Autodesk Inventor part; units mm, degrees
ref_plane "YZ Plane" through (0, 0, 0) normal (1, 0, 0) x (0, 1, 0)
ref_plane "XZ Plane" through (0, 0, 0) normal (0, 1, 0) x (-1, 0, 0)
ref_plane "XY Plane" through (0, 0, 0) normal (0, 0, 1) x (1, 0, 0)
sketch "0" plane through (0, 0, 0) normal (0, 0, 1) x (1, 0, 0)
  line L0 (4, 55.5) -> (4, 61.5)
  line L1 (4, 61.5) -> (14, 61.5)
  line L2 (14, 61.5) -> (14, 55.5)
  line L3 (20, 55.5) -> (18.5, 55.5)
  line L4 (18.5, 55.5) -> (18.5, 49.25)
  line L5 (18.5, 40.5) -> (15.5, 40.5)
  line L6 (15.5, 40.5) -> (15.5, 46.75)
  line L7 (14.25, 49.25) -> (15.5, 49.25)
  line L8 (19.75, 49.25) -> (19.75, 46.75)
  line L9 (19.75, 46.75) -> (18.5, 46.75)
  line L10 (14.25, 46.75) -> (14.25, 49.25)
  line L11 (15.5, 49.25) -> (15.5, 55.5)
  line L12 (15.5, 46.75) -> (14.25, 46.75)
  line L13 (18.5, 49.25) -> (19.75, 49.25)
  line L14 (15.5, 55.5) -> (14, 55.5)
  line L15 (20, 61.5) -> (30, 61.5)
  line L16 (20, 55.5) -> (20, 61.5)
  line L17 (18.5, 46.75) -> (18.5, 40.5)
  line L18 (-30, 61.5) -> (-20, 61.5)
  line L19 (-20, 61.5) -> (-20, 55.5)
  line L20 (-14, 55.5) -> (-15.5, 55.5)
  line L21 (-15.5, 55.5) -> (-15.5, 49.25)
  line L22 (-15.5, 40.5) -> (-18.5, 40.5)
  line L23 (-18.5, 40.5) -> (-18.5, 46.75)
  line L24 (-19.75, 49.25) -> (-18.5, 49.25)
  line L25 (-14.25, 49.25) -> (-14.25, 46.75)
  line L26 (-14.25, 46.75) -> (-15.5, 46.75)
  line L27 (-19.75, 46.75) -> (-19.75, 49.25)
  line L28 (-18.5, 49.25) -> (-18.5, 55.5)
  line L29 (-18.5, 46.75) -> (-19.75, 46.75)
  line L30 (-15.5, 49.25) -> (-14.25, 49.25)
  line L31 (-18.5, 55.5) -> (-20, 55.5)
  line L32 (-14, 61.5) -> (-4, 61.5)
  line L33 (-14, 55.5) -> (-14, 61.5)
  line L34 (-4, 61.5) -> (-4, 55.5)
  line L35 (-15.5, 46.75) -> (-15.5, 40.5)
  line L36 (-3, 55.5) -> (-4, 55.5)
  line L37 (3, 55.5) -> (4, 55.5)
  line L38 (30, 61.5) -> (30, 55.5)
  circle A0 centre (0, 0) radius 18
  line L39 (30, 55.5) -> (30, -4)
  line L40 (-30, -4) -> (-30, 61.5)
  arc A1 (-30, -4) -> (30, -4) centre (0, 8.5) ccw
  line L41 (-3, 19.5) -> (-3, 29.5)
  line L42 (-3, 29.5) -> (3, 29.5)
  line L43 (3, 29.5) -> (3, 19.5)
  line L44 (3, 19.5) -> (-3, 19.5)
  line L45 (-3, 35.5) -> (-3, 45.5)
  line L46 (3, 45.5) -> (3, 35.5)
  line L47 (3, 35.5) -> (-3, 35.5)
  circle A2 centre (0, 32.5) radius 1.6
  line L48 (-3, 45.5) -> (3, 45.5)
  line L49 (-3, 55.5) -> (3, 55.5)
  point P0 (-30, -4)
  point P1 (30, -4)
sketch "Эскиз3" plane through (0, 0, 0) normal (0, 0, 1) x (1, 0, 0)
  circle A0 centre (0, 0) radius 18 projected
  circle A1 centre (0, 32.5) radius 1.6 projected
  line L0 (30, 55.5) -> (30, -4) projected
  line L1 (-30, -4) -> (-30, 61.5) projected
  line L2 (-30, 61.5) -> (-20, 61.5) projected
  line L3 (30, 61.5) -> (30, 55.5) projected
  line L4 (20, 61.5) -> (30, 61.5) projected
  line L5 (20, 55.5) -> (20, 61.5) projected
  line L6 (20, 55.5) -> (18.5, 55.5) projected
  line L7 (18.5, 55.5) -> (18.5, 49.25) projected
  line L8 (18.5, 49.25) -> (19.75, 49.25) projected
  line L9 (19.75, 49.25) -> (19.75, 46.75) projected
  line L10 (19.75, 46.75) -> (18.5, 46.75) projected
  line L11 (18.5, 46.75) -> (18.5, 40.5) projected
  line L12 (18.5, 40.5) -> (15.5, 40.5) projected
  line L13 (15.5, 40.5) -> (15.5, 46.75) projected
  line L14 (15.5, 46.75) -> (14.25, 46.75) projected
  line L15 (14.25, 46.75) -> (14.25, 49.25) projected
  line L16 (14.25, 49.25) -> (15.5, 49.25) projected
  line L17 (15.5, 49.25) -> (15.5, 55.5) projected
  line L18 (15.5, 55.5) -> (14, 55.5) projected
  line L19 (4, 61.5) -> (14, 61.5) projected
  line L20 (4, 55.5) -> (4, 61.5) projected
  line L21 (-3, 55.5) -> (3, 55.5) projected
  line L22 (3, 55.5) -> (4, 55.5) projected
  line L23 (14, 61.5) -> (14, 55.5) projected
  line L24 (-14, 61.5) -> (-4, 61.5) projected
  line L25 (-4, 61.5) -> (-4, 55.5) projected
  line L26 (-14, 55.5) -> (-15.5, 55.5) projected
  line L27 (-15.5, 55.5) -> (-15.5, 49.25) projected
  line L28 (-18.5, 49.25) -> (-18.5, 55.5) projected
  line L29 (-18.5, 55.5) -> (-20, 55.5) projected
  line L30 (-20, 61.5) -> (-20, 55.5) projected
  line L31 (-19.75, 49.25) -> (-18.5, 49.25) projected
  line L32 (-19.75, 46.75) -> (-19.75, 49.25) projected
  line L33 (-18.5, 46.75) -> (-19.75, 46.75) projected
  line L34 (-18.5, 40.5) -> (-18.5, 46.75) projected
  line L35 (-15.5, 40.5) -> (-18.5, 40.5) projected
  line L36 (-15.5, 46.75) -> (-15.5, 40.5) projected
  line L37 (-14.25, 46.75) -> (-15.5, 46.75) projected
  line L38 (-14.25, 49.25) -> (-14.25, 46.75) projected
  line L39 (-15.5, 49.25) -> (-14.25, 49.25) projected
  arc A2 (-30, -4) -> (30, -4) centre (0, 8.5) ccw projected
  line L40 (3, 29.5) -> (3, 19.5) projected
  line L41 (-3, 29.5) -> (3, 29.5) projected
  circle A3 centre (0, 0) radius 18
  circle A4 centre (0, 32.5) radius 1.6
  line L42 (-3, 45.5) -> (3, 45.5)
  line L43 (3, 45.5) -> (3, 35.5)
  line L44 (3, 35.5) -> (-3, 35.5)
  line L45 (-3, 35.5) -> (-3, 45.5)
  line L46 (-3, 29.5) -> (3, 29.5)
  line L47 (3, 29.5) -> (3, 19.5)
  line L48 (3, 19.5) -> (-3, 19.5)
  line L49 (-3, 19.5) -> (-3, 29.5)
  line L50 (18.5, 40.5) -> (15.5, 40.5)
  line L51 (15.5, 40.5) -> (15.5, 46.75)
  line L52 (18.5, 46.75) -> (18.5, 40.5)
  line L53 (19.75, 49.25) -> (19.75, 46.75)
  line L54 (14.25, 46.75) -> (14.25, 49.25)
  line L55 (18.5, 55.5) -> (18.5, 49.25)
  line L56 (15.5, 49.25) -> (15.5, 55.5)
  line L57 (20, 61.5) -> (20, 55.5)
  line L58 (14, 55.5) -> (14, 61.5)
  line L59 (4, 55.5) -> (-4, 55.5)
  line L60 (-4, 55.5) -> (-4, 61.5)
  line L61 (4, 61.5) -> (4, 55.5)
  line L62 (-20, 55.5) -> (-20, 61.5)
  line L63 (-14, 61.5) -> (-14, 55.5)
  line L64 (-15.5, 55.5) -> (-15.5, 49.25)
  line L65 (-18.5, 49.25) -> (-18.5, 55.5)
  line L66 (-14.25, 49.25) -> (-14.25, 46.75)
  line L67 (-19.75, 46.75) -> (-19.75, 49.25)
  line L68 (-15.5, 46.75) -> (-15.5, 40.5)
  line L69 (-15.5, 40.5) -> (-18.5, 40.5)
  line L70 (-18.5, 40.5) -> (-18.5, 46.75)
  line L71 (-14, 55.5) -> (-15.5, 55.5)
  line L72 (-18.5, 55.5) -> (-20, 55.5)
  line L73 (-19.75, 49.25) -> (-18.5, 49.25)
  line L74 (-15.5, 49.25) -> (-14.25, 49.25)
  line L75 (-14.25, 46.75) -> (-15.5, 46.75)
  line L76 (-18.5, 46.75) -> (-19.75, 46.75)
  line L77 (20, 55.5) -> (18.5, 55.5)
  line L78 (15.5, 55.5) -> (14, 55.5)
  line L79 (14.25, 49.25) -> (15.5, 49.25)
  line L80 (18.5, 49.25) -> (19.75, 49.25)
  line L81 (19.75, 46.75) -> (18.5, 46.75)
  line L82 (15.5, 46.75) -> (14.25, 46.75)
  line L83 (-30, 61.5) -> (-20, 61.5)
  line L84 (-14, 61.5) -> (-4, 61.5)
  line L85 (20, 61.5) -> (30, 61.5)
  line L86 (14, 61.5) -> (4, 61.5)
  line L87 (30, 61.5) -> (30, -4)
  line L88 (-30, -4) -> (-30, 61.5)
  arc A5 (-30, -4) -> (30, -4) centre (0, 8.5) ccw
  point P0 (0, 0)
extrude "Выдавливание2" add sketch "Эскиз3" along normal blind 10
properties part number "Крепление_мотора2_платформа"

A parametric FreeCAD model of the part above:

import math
import FreeCAD as App
import Part
import Sketcher
Q = App.Units.Quantity

doc = App.newDocument("Part")
body = doc.addObject("PartDesign::Body", "Body")

# Sketch on XY plane
sketch1 = body.newObject("Sketcher::SketchObject", "Sketch")
sketch1.AttachmentSupport = (doc.getObject("XY_Plane"), [""])
sketch1.MapMode = "FlatFace"
sketch1.addGeometry([
    Part.LineSegment(App.Vector(30, -4, 0), App.Vector(30, 61.5, 0)),  # 0
    Part.LineSegment(App.Vector(30, 61.5, 0), App.Vector(20, 61.5, 0)),  # 1
    Part.LineSegment(App.Vector(20, 61.5, 0), App.Vector(20, 55.5, 0)),  # 2
    Part.LineSegment(App.Vector(20, 55.5, 0), App.Vector(18.5, 55.5, 0)),  # 3
    Part.LineSegment(App.Vector(18.5, 55.5, 0), App.Vector(18.5, 49.25, 0)),  # 4
    Part.LineSegment(App.Vector(18.5, 49.25, 0), App.Vector(19.75, 49.25, 0)),  # 5
    Part.LineSegment(App.Vector(19.75, 49.25, 0), App.Vector(19.75, 46.75, 0)),  # 6
    Part.LineSegment(App.Vector(19.75, 46.75, 0), App.Vector(18.5, 46.75, 0)),  # 7
    Part.LineSegment(App.Vector(18.5, 46.75, 0), App.Vector(18.5, 40.5, 0)),  # 8
    Part.LineSegment(App.Vector(18.5, 40.5, 0), App.Vector(15.5, 40.5, 0)),  # 9
    Part.LineSegment(App.Vector(15.5, 40.5, 0), App.Vector(15.5, 46.75, 0)),  # 10
    Part.LineSegment(App.Vector(15.5, 46.75, 0), App.Vector(14.25, 46.75, 0)),  # 11
    Part.LineSegment(App.Vector(14.25, 46.75, 0), App.Vector(14.25, 49.25, 0)),  # 12
    Part.LineSegment(App.Vector(14.25, 49.25, 0), App.Vector(15.5, 49.25, 0)),  # 13
    Part.LineSegment(App.Vector(15.5, 49.25, 0), App.Vector(15.5, 55.5, 0)),  # 14
    Part.LineSegment(App.Vector(15.5, 55.5, 0), App.Vector(14, 55.5, 0)),  # 15
    Part.LineSegment(App.Vector(14, 55.5, 0), App.Vector(14, 61.5, 0)),  # 16
    Part.LineSegment(App.Vector(14, 61.5, 0), App.Vector(4, 61.5, 0)),  # 17
    Part.LineSegment(App.Vector(4, 61.5, 0), App.Vector(4, 55.5, 0)),  # 18
    Part.LineSegment(App.Vector(4, 55.5, 0), App.Vector(-4, 55.5, 0)),  # 19
    Part.LineSegment(App.Vector(-4, 55.5, 0), App.Vector(-4, 61.5, 0)),  # 20
    Part.LineSegment(App.Vector(-4, 61.5, 0), App.Vector(-14, 61.5, 0)),  # 21
    Part.LineSegment(App.Vector(-14, 61.5, 0), App.Vector(-14, 55.5, 0)),  # 22
    Part.LineSegment(App.Vector(-14, 55.5, 0), App.Vector(-15.5, 55.5, 0)),  # 23
    Part.LineSegment(App.Vector(-15.5, 55.5, 0), App.Vector(-15.5, 49.25, 0)),  # 24
    Part.LineSegment(App.Vector(-15.5, 49.25, 0), App.Vector(-14.25, 49.25, 0)),  # 25
    Part.LineSegment(App.Vector(-14.25, 49.25, 0), App.Vector(-14.25, 46.75, 0)),  # 26
    Part.LineSegment(App.Vector(-14.25, 46.75, 0), App.Vector(-15.5, 46.75, 0)),  # 27
    Part.LineSegment(App.Vector(-15.5, 46.75, 0), App.Vector(-15.5, 40.5, 0)),  # 28
    Part.LineSegment(App.Vector(-15.5, 40.5, 0), App.Vector(-18.5, 40.5, 0)),  # 29
    Part.LineSegment(App.Vector(-18.5, 40.5, 0), App.Vector(-18.5, 46.75, 0)),  # 30
    Part.LineSegment(App.Vector(-18.5, 46.75, 0), App.Vector(-19.75, 46.75, 0)),  # 31
    Part.LineSegment(App.Vector(-19.75, 46.75, 0), App.Vector(-19.75, 49.25, 0)),  # 32
    Part.LineSegment(App.Vector(-19.75, 49.25, 0), App.Vector(-18.5, 49.25, 0)),  # 33
    Part.LineSegment(App.Vector(-18.5, 49.25, 0), App.Vector(-18.5, 55.5, 0)),  # 34
    Part.LineSegment(App.Vector(-18.5, 55.5, 0), App.Vector(-20, 55.5, 0)),  # 35
    Part.LineSegment(App.Vector(-20, 55.5, 0), App.Vector(-20, 61.5, 0)),  # 36
    Part.LineSegment(App.Vector(-20, 61.5, 0), App.Vector(-30, 61.5, 0)),  # 37
    Part.LineSegment(App.Vector(-30, 61.5, 0), App.Vector(-30, -4, 0)),  # 38
    Part.ArcOfCircle(Part.Circle(App.Vector(0, 8.5, 0), App.Vector(0, 0, 1), 32.5), math.radians(-157.380135), math.radians(-22.619865)),  # 39
    Part.Circle(App.Vector(0, 0, 0), App.Vector(0, 0, 1), 18),  # 40
    Part.LineSegment(App.Vector(-3, 29.5, 0), App.Vector(3, 29.5, 0)),  # 41
    Part.LineSegment(App.Vector(3, 29.5, 0), App.Vector(3, 19.5, 0)),  # 42
    Part.LineSegment(App.Vector(3, 19.5, 0), App.Vector(-3, 19.5, 0)),  # 43
    Part.LineSegment(App.Vector(-3, 19.5, 0), App.Vector(-3, 29.5, 0)),  # 44
    Part.Circle(App.Vector(0, 32.5, 0), App.Vector(0, 0, 1), 1.6),  # 45
    Part.LineSegment(App.Vector(-3, 35.5, 0), App.Vector(-3, 45.5, 0)),  # 46
    Part.LineSegment(App.Vector(-3, 45.5, 0), App.Vector(3, 45.5, 0)),  # 47
    Part.LineSegment(App.Vector(3, 45.5, 0), App.Vector(3, 35.5, 0)),  # 48
    Part.LineSegment(App.Vector(3, 35.5, 0), App.Vector(-3, 35.5, 0)),  # 49
], False)
sketch1.addConstraint([
    Sketcher.Constraint("Coincident", 0, 2, 1, 1),
    Sketcher.Constraint("Coincident", 1, 2, 2, 1),
    Sketcher.Constraint("Coincident", 2, 2, 3, 1),
    Sketcher.Constraint("Coincident", 3, 2, 4, 1),
    Sketcher.Constraint("Coincident", 4, 2, 5, 1),
    Sketcher.Constraint("Coincident", 5, 2, 6, 1),
    Sketcher.Constraint("Coincident", 6, 2, 7, 1),
    Sketcher.Constraint("Coincident", 7, 2, 8, 1),
    Sketcher.Constraint("Coincident", 8, 2, 9, 1),
    Sketcher.Constraint("Coincident", 9, 2, 10, 1),
    Sketcher.Constraint("Coincident", 10, 2, 11, 1),
    Sketcher.Constraint("Coincident", 11, 2, 12, 1),
    Sketcher.Constraint("Coincident", 12, 2, 13, 1),
    Sketcher.Constraint("Coincident", 13, 2, 14, 1),
    Sketcher.Constraint("Coincident", 14, 2, 15, 1),
    Sketcher.Constraint("Coincident", 15, 2, 16, 1),
    Sketcher.Constraint("Coincident", 16, 2, 17, 1),
    Sketcher.Constraint("Coincident", 17, 2, 18, 1),
    Sketcher.Constraint("Coincident", 18, 2, 19, 1),
    Sketcher.Constraint("Coincident", 19, 2, 20, 1),
    Sketcher.Constraint("Coincident", 20, 2, 21, 1),
    Sketcher.Constraint("Coincident", 21, 2, 22, 1),
    Sketcher.Constraint("Coincident", 22, 2, 23, 1),
    Sketcher.Constraint("Coincident", 23, 2, 24, 1),
    Sketcher.Constraint("Coincident", 24, 2, 25, 1),
    Sketcher.Constraint("Coincident", 25, 2, 26, 1),
    Sketcher.Constraint("Coincident", 26, 2, 27, 1),
    Sketcher.Constraint("Coincident", 27, 2, 28, 1),
    Sketcher.Constraint("Coincident", 28, 2, 29, 1),
    Sketcher.Constraint("Coincident", 29, 2, 30, 1),
    Sketcher.Constraint("Coincident", 30, 2, 31, 1),
    Sketcher.Constraint("Coincident", 31, 2, 32, 1),
    Sketcher.Constraint("Coincident", 32, 2, 33, 1),
    Sketcher.Constraint("Coincident", 33, 2, 34, 1),
    Sketcher.Constraint("Coincident", 34, 2, 35, 1),
    Sketcher.Constraint("Coincident", 35, 2, 36, 1),
    Sketcher.Constraint("Coincident", 36, 2, 37, 1),
    Sketcher.Constraint("Coincident", 37, 2, 38, 1),
    Sketcher.Constraint("Coincident", 38, 2, 39, 1),
    Sketcher.Constraint("Coincident", 39, 2, 0, 1),
    Sketcher.Constraint("Coincident", 41, 2, 42, 1),
    Sketcher.Constraint("Coincident", 42, 2, 43, 1),
    Sketcher.Constraint("Coincident", 43, 2, 44, 1),
    Sketcher.Constraint("Coincident", 44, 2, 41, 1),
    Sketcher.Constraint("Coincident", 46, 2, 47, 1),
    Sketcher.Constraint("Coincident", 47, 2, 48, 1),
    Sketcher.Constraint("Coincident", 48, 2, 49, 1),
    Sketcher.Constraint("Coincident", 49, 2, 46, 1),
    Sketcher.Constraint("Vertical", 0),
    Sketcher.Constraint("Horizontal", 1),
    Sketcher.Constraint("Vertical", 2),
    Sketcher.Constraint("Horizontal", 3),
    Sketcher.Constraint("Vertical", 4),
    Sketcher.Constraint("Horizontal", 5),
    Sketcher.Constraint("Vertical", 6),
    Sketcher.Constraint("Horizontal", 7),
    Sketcher.Constraint("Vertical", 8),
    Sketcher.Constraint("Horizontal", 9),
    Sketcher.Constraint("Vertical", 10),
    Sketcher.Constraint("Horizontal", 11),
    Sketcher.Constraint("Vertical", 12),
    Sketcher.Constraint("Horizontal", 13),
    Sketcher.Constraint("Vertical", 14),
    Sketcher.Constraint("Horizontal", 15),
    Sketcher.Constraint("Vertical", 16),
    Sketcher.Constraint("Horizontal", 17),
    Sketcher.Constraint("Vertical", 18),
    Sketcher.Constraint("Horizontal", 19),
    Sketcher.Constraint("Vertical", 20),
    Sketcher.Constraint("Horizontal", 21),
    Sketcher.Constraint("Vertical", 22),
    Sketcher.Constraint("Horizontal", 23),
    Sketcher.Constraint("Vertical", 24),
    Sketcher.Constraint("Horizontal", 25),
    Sketcher.Constraint("Vertical", 26),
    Sketcher.Constraint("Horizontal", 27),
    Sketcher.Constraint("Vertical", 28),
    Sketcher.Constraint("Horizontal", 29),
    Sketcher.Constraint("Vertical", 30),
    Sketcher.Constraint("Horizontal", 31),
    Sketcher.Constraint("Vertical", 32),
    Sketcher.Constraint("Horizontal", 33),
    Sketcher.Constraint("Vertical", 34),
    Sketcher.Constraint("Horizontal", 35),
    Sketcher.Constraint("Vertical", 36),
    Sketcher.Constraint("Horizontal", 37),
    Sketcher.Constraint("Vertical", 38),
    Sketcher.Constraint("Horizontal", 41),
    Sketcher.Constraint("Vertical", 42),
    Sketcher.Constraint("Horizontal", 43),
    Sketcher.Constraint("Vertical", 44),
    Sketcher.Constraint("Vertical", 46),
    Sketcher.Constraint("Horizontal", 47),
    Sketcher.Constraint("Vertical", 48),
    Sketcher.Constraint("Horizontal", 49),
    Sketcher.Constraint("Coincident", 40, 3, -1, 1),
    Sketcher.Constraint("Symmetric", 17, 2, 20, 2, -2),
    Sketcher.Constraint("Symmetric", 15, 2, 22, 2, -2),
    Sketcher.Constraint("Symmetric", 13, 2, 24, 2, -2),
    Sketcher.Constraint("Symmetric", 11, 2, 26, 2, -2),
    Sketcher.Constraint("Symmetric", 9, 2, 28, 2, -2),
    Sketcher.Constraint("Symmetric", 7, 2, 30, 2, -2),
    Sketcher.Constraint("Symmetric", 5, 2, 32, 2, -2),
    Sketcher.Constraint("Symmetric", 3, 2, 34, 2, -2),
    Sketcher.Constraint("Symmetric", 1, 2, 36, 2, -2),
    Sketcher.Constraint("Symmetric", 38, 2, 39, 2, -2),
    Sketcher.Constraint("PointOnObject", 45, 3, -2),
    Sketcher.Constraint("Horizontal", 7, 2, 10, 2),
    Sketcher.Constraint("Horizontal", 5, 2, 12, 2),
    Sketcher.Constraint("Horizontal", 3, 2, 14, 2),
    Sketcher.Constraint("Horizontal", 1, 2, 16, 2),
    Sketcher.Constraint("Horizontal", 15, 2, 18, 2),
    Sketcher.Constraint("Vertical", 4, 2, 7, 2),
    Sketcher.Constraint("Vertical", 10, 2, 13, 2),
    Sketcher.Constraint("Vertical", 44, 2, 46, 2),
    Sketcher.Constraint("Vertical", 42, 2, 47, 2),
    Sketcher.Constraint("Equal", 7, 11),
    Sketcher.Constraint("Equal", 3, 15),
    Sketcher.Constraint("Equal", 1, 17),
    Sketcher.Constraint("Equal", 49, 2),
    Sketcher.Constraint("Equal", 4, 8),
    Sketcher.Constraint("Equal", 37, 42),
    Sketcher.Constraint("Equal", 44, 46),
    Sketcher.Constraint("Diameter", 40, Q("36 mm")),
    Sketcher.Constraint("Diameter", 45, Q("3.2 mm")),
    Sketcher.Constraint("Radius", 39, Q("32.5 mm")),
    Sketcher.Constraint("DistanceX", 1, 2, 1, 1, Q("10 mm")),
    Sketcher.Constraint("DistanceX", 9, 2, 9, 1, Q("3 mm")),
    Sketcher.Constraint("DistanceX", 19, 2, 19, 1, Q("8 mm")),
    Sketcher.Constraint("DistanceX", 41, 1, 41, 2, Q("6 mm")),
    Sketcher.Constraint("DistanceX", 3, 2, 3, 1, Q("1.5 mm")),
    Sketcher.Constraint("DistanceY", 0, 1, 0, 2, Q("65.5 mm")),
    Sketcher.Constraint("DistanceY", 6, 2, 6, 1, Q("2.5 mm")),
    Sketcher.Constraint("DistanceY", 38, 2, -1, 1, Q("4 mm")),
    Sketcher.Constraint("DistanceX", -1, 1, 41, 2, Q("3 mm")),
    Sketcher.Constraint("DistanceY", 39, 3, 45, 3, Q("24 mm")),
    Sketcher.Constraint("DistanceY", 8, 2, 3, 2, Q("15 mm")),
    Sketcher.Constraint("DistanceY", 41, 2, 45, 3, Q("3 mm")),
    Sketcher.Constraint("DistanceY", 46, 2, 19, 2, Q("10 mm")),
    Sketcher.Constraint("DistanceX", 5, 1, 5, 2, Q("1.25 mm")),
])
pad1 = body.newObject("PartDesign::Pad", "Pad")
pad1.Profile = sketch1
pad1.Length = 10

doc.recompute()
